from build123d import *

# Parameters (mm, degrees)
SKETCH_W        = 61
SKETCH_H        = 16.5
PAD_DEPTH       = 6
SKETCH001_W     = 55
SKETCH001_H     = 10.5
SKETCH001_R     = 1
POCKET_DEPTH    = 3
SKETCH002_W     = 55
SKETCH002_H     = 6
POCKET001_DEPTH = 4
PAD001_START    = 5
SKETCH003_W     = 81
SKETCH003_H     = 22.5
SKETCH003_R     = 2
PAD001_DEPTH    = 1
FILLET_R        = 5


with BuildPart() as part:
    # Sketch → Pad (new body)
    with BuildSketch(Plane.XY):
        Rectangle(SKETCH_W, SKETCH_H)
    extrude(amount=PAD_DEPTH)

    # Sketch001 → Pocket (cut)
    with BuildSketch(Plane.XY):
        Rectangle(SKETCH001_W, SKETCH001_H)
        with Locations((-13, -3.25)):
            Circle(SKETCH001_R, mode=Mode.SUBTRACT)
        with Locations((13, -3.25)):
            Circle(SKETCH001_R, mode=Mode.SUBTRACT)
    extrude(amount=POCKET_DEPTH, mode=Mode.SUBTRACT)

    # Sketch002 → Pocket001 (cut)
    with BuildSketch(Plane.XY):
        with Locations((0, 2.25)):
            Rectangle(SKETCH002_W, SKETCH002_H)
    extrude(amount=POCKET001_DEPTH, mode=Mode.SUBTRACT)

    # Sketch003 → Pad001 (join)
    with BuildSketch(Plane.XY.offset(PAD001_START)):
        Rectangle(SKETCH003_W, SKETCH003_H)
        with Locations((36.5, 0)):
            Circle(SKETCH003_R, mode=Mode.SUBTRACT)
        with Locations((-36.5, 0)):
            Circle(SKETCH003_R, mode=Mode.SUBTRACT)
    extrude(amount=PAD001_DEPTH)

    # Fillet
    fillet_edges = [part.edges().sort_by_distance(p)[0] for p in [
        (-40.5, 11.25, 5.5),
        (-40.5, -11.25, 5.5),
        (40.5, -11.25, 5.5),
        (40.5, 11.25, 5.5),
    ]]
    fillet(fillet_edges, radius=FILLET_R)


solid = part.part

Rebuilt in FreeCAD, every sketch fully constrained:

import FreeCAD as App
import Part
import Sketcher


def edges_at(feature, points):
    """Names of the edges that pass closest to the given points."""
    edges = feature.Shape.Edges
    near = lambda p: min(range(len(edges)), key=lambda i: edges[i].distToShape(Part.Vertex(*p))[0])
    return sorted({f"Edge{near(p) + 1}" for p in points})


def add_polygon(sketch, points):
    """Adds a closed chain of lines whose ends are joined by coincident constraints."""
    first, n = sketch.GeometryCount, len(points)
    for a, b in zip(points, points[1:] + points[:1]):
        sketch.addGeometry(Part.LineSegment(App.Vector(*a, 0), App.Vector(*b, 0)), False)
    for i in range(n):
        sketch.addConstraint(Sketcher.Constraint("Coincident", first + i, 2, first + (i + 1) % n, 1))

doc = App.newDocument("Part")
body = doc.addObject("PartDesign::Body", "Body")

# Sketch on XY plane
sketch1 = body.newObject("Sketcher::SketchObject", "Sketch")
sketch1.AttachmentSupport = (doc.getObject("XY_Plane"), [""])
sketch1.MapMode = "FlatFace"
add_polygon(sketch1, [(-30, 8), (-30, -8), (30, -8), (30, 8)])  # lines 0-3
sketch1.addConstraint(Sketcher.Constraint("Vertical", 0))
sketch1.addConstraint(Sketcher.Constraint("Horizontal", 1))
sketch1.addConstraint(Sketcher.Constraint("Vertical", 2))
sketch1.addConstraint(Sketcher.Constraint("Horizontal", 3))
sketch1.addConstraint(Sketcher.Constraint("Symmetric", 0, 2, 2, 2, -1, 1))
sketch1.addConstraint(Sketcher.Constraint("DistanceX", 1, 1, 1, 2, 61.0))
sketch1.addConstraint(Sketcher.Constraint("DistanceY", 0, 2, 0, 1, 16.5))
pad1 = body.newObject("PartDesign::Pad", "Pad")
pad1.Profile = sketch1
pad1.Length = 6

# Sketch on XY plane
sketch2 = body.newObject("Sketcher::SketchObject", "Sketch001")
sketch2.AttachmentSupport = (doc.getObject("XY_Plane"), [""])
sketch2.MapMode = "FlatFace"
add_polygon(sketch2, [(-27.5, 5.2), (-27.5, -5.2), (27.5, -5.2), (27.5, 5.2)])  # lines 0-3
sketch2.addGeometry(Part.Circle(App.Vector(-13, -3.2, 0), App.Vector(0, 0, 1), 1), False)  # 4
sketch2.addGeometry(Part.Circle(App.Vector(13, -3.2, 0), App.Vector(0, 0, 1), 1), False)  # 5
sketch2.addConstraint(Sketcher.Constraint("Vertical", 0))
sketch2.addConstraint(Sketcher.Constraint("Horizontal", 1))
sketch2.addConstraint(Sketcher.Constraint("Vertical", 2))
sketch2.addConstraint(Sketcher.Constraint("Horizontal", 3))
sketch2.addConstraint(Sketcher.Constraint("Equal", 4, 5))
sketch2.addConstraint(Sketcher.Constraint("Symmetric", 0, 2, 2, 2, -1, 1))
sketch2.addConstraint(Sketcher.Constraint("Symmetric", 4, 3, 5, 3, -2))
sketch2.addConstraint(Sketcher.Constraint("Diameter", 4, 2.0))
sketch2.addConstraint(Sketcher.Constraint("DistanceX", 1, 1, 1, 2, 55.0))
sketch2.addConstraint(Sketcher.Constraint("DistanceY", 0, 2, 0, 1, 10.5))
sketch2.addConstraint(Sketcher.Constraint("DistanceX", 4, 3, -1, 1, 13.0))
sketch2.addConstraint(Sketcher.Constraint("DistanceY", 0, 2, 4, 3, 2.0))
pocket1 = body.newObject("PartDesign::Pocket", "Pocket")
pocket1.Profile = sketch2
pocket1.Length = 3
pocket1.Reversed = True

# Sketch on XY plane
sketch3 = body.newObject("Sketcher::SketchObject", "Sketch002")
sketch3.AttachmentSupport = (doc.getObject("XY_Plane"), [""])
sketch3.MapMode = "FlatFace"
add_polygon(sketch3, [(-28, 5), (-28, -1), (28, -1), (28, 5)])  # lines 0-3
sketch3.addConstraint(Sketcher.Constraint("Vertical", 0))
sketch3.addConstraint(Sketcher.Constraint("Horizontal", 1))
sketch3.addConstraint(Sketcher.Constraint("Vertical", 2))
sketch3.addConstraint(Sketcher.Constraint("Horizontal", 3))
sketch3.addConstraint(Sketcher.Constraint("DistanceX", 1, 1, 1, 2, 55.0))
sketch3.addConstraint(Sketcher.Constraint("DistanceY", 0, 2, 0, 1, 6.0))
sketch3.addConstraint(Sketcher.Constraint("DistanceX", 0, 2, -1, 1, 27.5))
sketch3.addConstraint(Sketcher.Constraint("DistanceY", 0, 2, -1, 1, 0.75))
pocket2 = body.newObject("PartDesign::Pocket", "Pocket001")
pocket2.Profile = sketch3
pocket2.Length = 4
pocket2.Reversed = True

# Sketch on XY plane
sketch4 = body.newObject("Sketcher::SketchObject", "Sketch003")
sketch4.AttachmentSupport = (doc.getObject("XY_Plane"), [""])
sketch4.MapMode = "FlatFace"
sketch4.AttachmentOffset = App.Placement(App.Vector(0, 0, 5), App.Rotation())
add_polygon(sketch4, [(-40.5, 11.2), (-40.5, -11.2), (40.5, -11.2), (40.5, 11.2)])  # lines 0-3
sketch4.addGeometry(Part.Circle(App.Vector(-36.5, 0, 0), App.Vector(0, 0, 1), 2), False)  # 4
sketch4.addGeometry(Part.Circle(App.Vector(36.5, 0, 0), App.Vector(0, 0, 1), 2), False)  # 5
sketch4.addConstraint(Sketcher.Constraint("Vertical", 0))
sketch4.addConstraint(Sketcher.Constraint("Horizontal", 1))
sketch4.addConstraint(Sketcher.Constraint("Vertical", 2))
sketch4.addConstraint(Sketcher.Constraint("Horizontal", 3))
sketch4.addConstraint(Sketcher.Constraint("Equal", 4, 5))
sketch4.addConstraint(Sketcher.Constraint("Symmetric", 4, 3, 5, 3, -1, 1))
sketch4.addConstraint(Sketcher.Constraint("Symmetric", 0, 2, 2, 2, -1, 1))
sketch4.addConstraint(Sketcher.Constraint("PointOnObject", 4, 3, -1))
sketch4.addConstraint(Sketcher.Constraint("Diameter", 4, 4.0))
sketch4.addConstraint(Sketcher.Constraint("DistanceX", 1, 1, 1, 2, 81.0))
sketch4.addConstraint(Sketcher.Constraint("DistanceY", 0, 2, 0, 1, 22.5))
sketch4.addConstraint(Sketcher.Constraint("DistanceX", 4, 3, 5, 3, 73.0))
pad2 = body.newObject("PartDesign::Pad", "Pad001")
pad2.Profile = sketch4
pad2.Length = 1
doc.recompute()

fillet = body.newObject("PartDesign::Fillet", "Fillet")
fillet.Base = (pad2, edges_at(pad2, [
    (-40.5, 11.25, 5.5),
    (-40.5, -11.25, 5.5),
    (40.5, -11.25, 5.5),
    (40.5, 11.25, 5.5),
]))
fillet.Radius = 5

doc.recompute()
